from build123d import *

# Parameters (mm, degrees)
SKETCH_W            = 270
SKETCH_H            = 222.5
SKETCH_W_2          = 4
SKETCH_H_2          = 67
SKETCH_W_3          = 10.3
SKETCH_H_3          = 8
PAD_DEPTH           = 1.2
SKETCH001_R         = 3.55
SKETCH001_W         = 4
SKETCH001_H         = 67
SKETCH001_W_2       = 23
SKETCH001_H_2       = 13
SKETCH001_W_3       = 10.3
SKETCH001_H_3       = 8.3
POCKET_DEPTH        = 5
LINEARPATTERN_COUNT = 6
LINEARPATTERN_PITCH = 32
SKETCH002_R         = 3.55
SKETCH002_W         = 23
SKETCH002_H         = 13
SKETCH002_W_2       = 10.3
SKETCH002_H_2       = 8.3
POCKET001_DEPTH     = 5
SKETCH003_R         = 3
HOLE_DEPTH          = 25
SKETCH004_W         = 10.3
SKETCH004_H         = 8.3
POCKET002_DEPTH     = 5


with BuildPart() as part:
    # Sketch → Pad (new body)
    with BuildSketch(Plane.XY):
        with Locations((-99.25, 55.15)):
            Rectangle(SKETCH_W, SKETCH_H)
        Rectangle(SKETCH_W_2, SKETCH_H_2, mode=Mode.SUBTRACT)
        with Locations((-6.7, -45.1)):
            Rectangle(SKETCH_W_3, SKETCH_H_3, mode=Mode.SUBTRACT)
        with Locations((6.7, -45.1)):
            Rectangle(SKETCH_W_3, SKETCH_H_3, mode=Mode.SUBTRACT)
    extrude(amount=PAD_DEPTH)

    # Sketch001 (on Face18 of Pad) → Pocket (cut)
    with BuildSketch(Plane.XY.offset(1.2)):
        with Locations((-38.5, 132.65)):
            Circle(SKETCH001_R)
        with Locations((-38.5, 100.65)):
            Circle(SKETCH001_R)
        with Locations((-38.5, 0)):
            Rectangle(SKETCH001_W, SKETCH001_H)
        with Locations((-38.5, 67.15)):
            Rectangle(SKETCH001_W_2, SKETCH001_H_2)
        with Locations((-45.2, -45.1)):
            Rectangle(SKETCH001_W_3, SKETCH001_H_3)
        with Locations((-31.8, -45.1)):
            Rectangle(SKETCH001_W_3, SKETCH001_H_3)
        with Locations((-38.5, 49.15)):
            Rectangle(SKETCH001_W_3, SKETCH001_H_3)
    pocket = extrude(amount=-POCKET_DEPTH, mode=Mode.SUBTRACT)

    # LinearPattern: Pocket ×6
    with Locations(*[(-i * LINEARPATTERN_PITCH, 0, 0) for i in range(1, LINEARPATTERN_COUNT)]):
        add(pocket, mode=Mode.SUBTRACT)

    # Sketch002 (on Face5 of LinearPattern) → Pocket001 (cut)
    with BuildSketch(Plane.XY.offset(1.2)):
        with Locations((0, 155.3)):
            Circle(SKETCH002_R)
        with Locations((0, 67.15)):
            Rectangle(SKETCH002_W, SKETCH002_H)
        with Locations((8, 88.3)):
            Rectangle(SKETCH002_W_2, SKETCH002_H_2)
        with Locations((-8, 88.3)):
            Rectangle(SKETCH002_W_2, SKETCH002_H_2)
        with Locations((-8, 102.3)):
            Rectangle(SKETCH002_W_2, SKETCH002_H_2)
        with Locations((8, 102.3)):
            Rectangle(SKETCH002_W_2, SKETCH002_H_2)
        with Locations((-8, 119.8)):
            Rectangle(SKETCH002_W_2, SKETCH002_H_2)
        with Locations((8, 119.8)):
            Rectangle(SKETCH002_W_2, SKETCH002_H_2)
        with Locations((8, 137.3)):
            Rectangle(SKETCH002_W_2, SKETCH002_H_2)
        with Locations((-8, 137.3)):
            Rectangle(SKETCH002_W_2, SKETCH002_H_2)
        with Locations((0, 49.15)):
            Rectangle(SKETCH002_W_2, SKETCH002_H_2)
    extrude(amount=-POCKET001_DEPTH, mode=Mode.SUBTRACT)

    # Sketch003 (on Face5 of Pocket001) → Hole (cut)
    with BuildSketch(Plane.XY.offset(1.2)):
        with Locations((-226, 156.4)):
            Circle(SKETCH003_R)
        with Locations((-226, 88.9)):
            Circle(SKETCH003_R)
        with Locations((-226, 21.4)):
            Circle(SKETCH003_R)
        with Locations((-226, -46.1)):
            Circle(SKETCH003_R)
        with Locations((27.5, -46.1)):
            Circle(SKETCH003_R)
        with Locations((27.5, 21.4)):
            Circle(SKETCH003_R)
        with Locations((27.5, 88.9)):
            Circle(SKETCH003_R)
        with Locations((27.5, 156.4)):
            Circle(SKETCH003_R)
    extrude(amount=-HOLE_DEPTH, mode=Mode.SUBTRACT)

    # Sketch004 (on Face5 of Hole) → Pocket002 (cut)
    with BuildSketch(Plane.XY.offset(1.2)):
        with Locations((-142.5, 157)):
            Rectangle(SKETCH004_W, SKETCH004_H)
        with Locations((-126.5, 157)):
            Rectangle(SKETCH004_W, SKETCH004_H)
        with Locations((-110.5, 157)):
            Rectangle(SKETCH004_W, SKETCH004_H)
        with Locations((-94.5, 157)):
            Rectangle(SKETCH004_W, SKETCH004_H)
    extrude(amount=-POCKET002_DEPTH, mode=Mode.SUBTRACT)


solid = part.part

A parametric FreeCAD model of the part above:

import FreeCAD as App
import Part
import Sketcher

V = App.Vector


def add_polygon(sketch, points):
    """Adds a closed chain of lines whose ends are joined by coincident constraints."""
    first, n = sketch.GeometryCount, len(points)
    for a, b in zip(points, points[1:] + points[:1]):
        sketch.addGeometry(Part.LineSegment(App.Vector(*a, 0), App.Vector(*b, 0)), False)
    for i in range(n):
        sketch.addConstraint(Sketcher.Constraint("Coincident", first + i, 2, first + (i + 1) % n, 1))

doc = App.newDocument("Part")
body = doc.addObject("PartDesign::Body", "Body")

sketch1 = body.newObject("Sketcher::SketchObject", "Sketch")
sketch1.AttachmentSupport = (doc.getObject("XY_Plane"), [""])
sketch1.MapMode = "FlatFace"
add_polygon(sketch1, [(-234.25, 166.4), (-234.25, -56.1), (35.75, -56.1), (35.75, 166.4)])
add_polygon(sketch1, [(-1.55, -49.1), (-11.85, -49.1), (-11.85, -41.1), (-1.55, -41.1)])
add_polygon(sketch1, [(11.85, -49.1), (1.55, -49.1), (1.55, -41.1), (11.85, -41.1)])
add_polygon(sketch1, [(2, -33.5), (-2, -33.5), (-2, 33.5), (2, 33.5)])
sketch1.addConstraint([
    Sketcher.Constraint("Vertical", 0),
    Sketcher.Constraint("Horizontal", 1),
    Sketcher.Constraint("Vertical", 2),
    Sketcher.Constraint("Horizontal", 3),
    Sketcher.Constraint("Horizontal", 4),
    Sketcher.Constraint("Vertical", 5),
    Sketcher.Constraint("Horizontal", 6),
    Sketcher.Constraint("Vertical", 7),
    Sketcher.Constraint("Horizontal", 8),
    Sketcher.Constraint("Vertical", 9),
    Sketcher.Constraint("Horizontal", 10),
    Sketcher.Constraint("Vertical", 11),
    Sketcher.Constraint("Horizontal", 12),
    Sketcher.Constraint("Vertical", 13),
    Sketcher.Constraint("Horizontal", 14),
    Sketcher.Constraint("Vertical", 15),
    Sketcher.Constraint("Symmetric", 12, 2, 14, 2, -1, 1),
    Sketcher.Constraint("Symmetric", 7, 2, 8, 2, -2),
    Sketcher.Constraint("Symmetric", 5, 2, 10, 2, -2),
    Sketcher.Constraint("DistanceX", 1, 1, 1, 2, 270.0),
    Sketcher.Constraint("DistanceX", 12, 2, 12, 1, 4.0),
    Sketcher.Constraint("DistanceY", 5, 1, 5, 2, 8.0),
    Sketcher.Constraint("DistanceY", 13, 1, 13, 2, 67.0),
    Sketcher.Constraint("DistanceX", 4, 2, 4, 1, 10.3),
    Sketcher.Constraint("DistanceY", 0, 2, 0, 1, 222.5),
    Sketcher.Constraint("DistanceY", 1, 2, 4, 2, 7.0),
    Sketcher.Constraint("DistanceY", 0, 2, -1, 1, 56.1),
    Sketcher.Constraint("DistanceX", 4, 2, 1, 2, 47.6),
    Sketcher.Constraint("DistanceX", 7, 2, 8, 2, 3.1),
])
pad1 = body.newObject("PartDesign::Pad", "Pad")
pad1.Profile = sketch1
pad1.Length = 1.2

sketch2 = body.newObject("Sketcher::SketchObject", "Sketch001")
sketch2.AttachmentSupport = (doc.getObject("XY_Plane"), [""])
sketch2.MapMode = "FlatFace"
sketch2.AttachmentOffset = App.Placement(V(0, 0, 1.2), App.Rotation())
sketch2.addGeometry(Part.Circle(V(-38.5, 132.65, 0), V(0, 0, 1), 3.55), False)
sketch2.addGeometry(Part.Circle(V(-38.5, 100.65, 0), V(0, 0, 1), 3.55), False)
add_polygon(sketch2, [(-40.5, 33.5), (-40.5, -33.5), (-36.5, -33.5), (-36.5, 33.5)])
add_polygon(sketch2, [(-50, 73.65), (-50, 60.65), (-27, 60.65), (-27, 73.65)])
add_polygon(sketch2, [(-50.35, -40.95), (-50.35, -49.25), (-40.05, -49.25), (-40.05, -40.95)])
add_polygon(sketch2, [(-36.95, -40.95), (-36.95, -49.25), (-26.65, -49.25), (-26.65, -40.95)])
add_polygon(sketch2, [(-43.65, 53.3), (-43.65, 45), (-33.35, 45), (-33.35, 53.3)])
sketch2.addConstraint([
    Sketcher.Constraint("Vertical", 2),
    Sketcher.Constraint("Horizontal", 3),
    Sketcher.Constraint("Vertical", 4),
    Sketcher.Constraint("Horizontal", 5),
    Sketcher.Constraint("Vertical", 6),
    Sketcher.Constraint("Horizontal", 7),
    Sketcher.Constraint("Vertical", 8),
    Sketcher.Constraint("Horizontal", 9),
    Sketcher.Constraint("Vertical", 10),
    Sketcher.Constraint("Horizontal", 11),
    Sketcher.Constraint("Vertical", 12),
    Sketcher.Constraint("Horizontal", 13),
    Sketcher.Constraint("Vertical", 14),
    Sketcher.Constraint("Horizontal", 15),
    Sketcher.Constraint("Vertical", 16),
    Sketcher.Constraint("Horizontal", 17),
    Sketcher.Constraint("Vertical", 18),
    Sketcher.Constraint("Horizontal", 19),
    Sketcher.Constraint("Vertical", 20),
    Sketcher.Constraint("Horizontal", 21),
    Sketcher.Constraint("Equal", 0, 1),
    Sketcher.Constraint("Horizontal", 11, 2, 14, 2),
    Sketcher.Constraint("Horizontal", 13, 2, 16, 2),
    Sketcher.Constraint("Vertical", 0, 3, 1, 3),
    Sketcher.Constraint("Equal", 13, 15),
    Sketcher.Constraint("Equal", 17, 19),
    Sketcher.Constraint("Equal", 16, 18),
    Sketcher.Constraint("Diameter", 0, 7.1),
    Sketcher.Constraint("DistanceX", 3, 1, 3, 2, 4.0),
    Sketcher.Constraint("DistanceX", 7, 1, 7, 2, 23.0),
    Sketcher.Constraint("DistanceY", 2, 2, 2, 1, 67.0),
    Sketcher.Constraint("DistanceY", 6, 2, 6, 1, 13.0),
    Sketcher.Constraint("DistanceX", 11, 1, 11, 2, 10.3),
    Sketcher.Constraint("DistanceY", 10, 2, 10, 1, 8.3),
    Sketcher.Constraint("DistanceX", 6, 2, -1, 1, 50.0),
    Sketcher.Constraint("DistanceY", -1, 1, 18, 2, 45.0),
    Sketcher.Constraint("DistanceY", 1, 3, 0, 3, 32.0),
    Sketcher.Constraint("DistanceX", 2, 2, 1, 3, 2.0),
    Sketcher.Constraint("DistanceY", 6, 2, 1, 3, 40.0),
    Sketcher.Constraint("DistanceX", 0, 3, -1, 1, 38.5),
    Sketcher.Constraint("DistanceY", 2, 2, -1, 1, 33.5),
    Sketcher.Constraint("DistanceY", 10, 2, 6, 2, 109.9),
    Sketcher.Constraint("DistanceX", 11, 2, 14, 2, 3.1),
    Sketcher.Constraint("DistanceY", -1, 1, 0, 3, 132.65),
    Sketcher.Constraint("DistanceX", 10, 2, -1, 1, 50.35),
    Sketcher.Constraint("DistanceX", 18, 2, -1, 1, 43.65),
])
pocket1 = body.newObject("PartDesign::Pocket", "Pocket")
pocket1.Profile = sketch2
pocket1.Length = 5
doc.recompute()

linearpattern = body.newObject("PartDesign::LinearPattern", "LinearPattern")
linearpattern.Originals = [pocket1]
linearpattern.Direction = (doc.getObject("X_Axis"), [""])
linearpattern.Mode = "offset"
linearpattern.Offset = 32
linearpattern.Occurrences = 6
linearpattern.Reversed = True
body.Tip = linearpattern

sketch3 = body.newObject("Sketcher::SketchObject", "Sketch002")
sketch3.AttachmentSupport = (doc.getObject("XY_Plane"), [""])
sketch3.MapMode = "FlatFace"
sketch3.AttachmentOffset = App.Placement(V(0, 0, 1.2), App.Rotation())
sketch3.addGeometry(Part.Circle(V(0, 155.3, 0), V(0, 0, 1), 3.55), False)
add_polygon(sketch3, [(-11.5, 73.65), (-11.5, 60.65), (11.5, 60.65), (11.5, 73.65)])
add_polygon(sketch3, [(2.85, 92.45), (2.85, 84.15), (13.15, 84.15), (13.15, 92.45)])
add_polygon(sketch3, [(-13.15, 92.45), (-13.15, 84.15), (-2.85, 84.15), (-2.85, 92.45)])
add_polygon(sketch3, [(-13.15, 106.45), (-13.15, 98.15), (-2.85, 98.15), (-2.85, 106.45)])
add_polygon(sketch3, [(2.85, 106.45), (2.85, 98.15), (13.15, 98.15), (13.15, 106.45)])
add_polygon(sketch3, [(-13.15, 123.95), (-13.15, 115.65), (-2.85, 115.65), (-2.85, 123.95)])
add_polygon(sketch3, [(2.85, 123.95), (2.85, 115.65), (13.15, 115.65), (13.15, 123.95)])
add_polygon(sketch3, [(2.85, 141.45), (2.85, 133.15), (13.15, 133.15), (13.15, 141.45)])
add_polygon(sketch3, [(-13.15, 141.45), (-13.15, 133.15), (-2.85, 133.15), (-2.85, 141.45)])
add_polygon(sketch3, [(-5.15, 53.3), (-5.15, 45), (5.15, 45), (5.15, 53.3)])
sketch3.addConstraint([
    Sketcher.Constraint("Vertical", 1),
    Sketcher.Constraint("Horizontal", 2),
    Sketcher.Constraint("Vertical", 3),
    Sketcher.Constraint("Horizontal", 4),
    Sketcher.Constraint("Vertical", 5),
    Sketcher.Constraint("Horizontal", 6),
    Sketcher.Constraint("Vertical", 7),
    Sketcher.Constraint("Horizontal", 8),
    Sketcher.Constraint("Vertical", 9),
    Sketcher.Constraint("Horizontal", 10),
    Sketcher.Constraint("Vertical", 11),
    Sketcher.Constraint("Horizontal", 12),
    Sketcher.Constraint("Vertical", 13),
    Sketcher.Constraint("Horizontal", 14),
    Sketcher.Constraint("Vertical", 15),
    Sketcher.Constraint("Horizontal", 16),
    Sketcher.Constraint("Vertical", 17),
    Sketcher.Constraint("Horizontal", 18),
    Sketcher.Constraint("Vertical", 19),
    Sketcher.Constraint("Horizontal", 20),
    Sketcher.Constraint("Vertical", 21),
    Sketcher.Constraint("Horizontal", 22),
    Sketcher.Constraint("Vertical", 23),
    Sketcher.Constraint("Horizontal", 24),
    Sketcher.Constraint("Vertical", 25),
    Sketcher.Constraint("Horizontal", 26),
    Sketcher.Constraint("Vertical", 27),
    Sketcher.Constraint("Horizontal", 28),
    Sketcher.Constraint("Vertical", 29),
    Sketcher.Constraint("Horizontal", 30),
    Sketcher.Constraint("Vertical", 31),
    Sketcher.Constraint("Horizontal", 32),
    Sketcher.Constraint("Vertical", 33),
    Sketcher.Constraint("Horizontal", 34),
    Sketcher.Constraint("Vertical", 35),
    Sketcher.Constraint("Horizontal", 36),
    Sketcher.Constraint("Vertical", 37),
    Sketcher.Constraint("Horizontal", 38),
    Sketcher.Constraint("Vertical", 39),
    Sketcher.Constraint("Horizontal", 40),
    Sketcher.Constraint("Symmetric", 6, 2, 9, 2, -2),
    Sketcher.Constraint("Symmetric", 8, 2, 11, 2, -2),
    Sketcher.Constraint("Symmetric", 14, 2, 17, 2, -2),
    Sketcher.Constraint("Symmetric", 16, 2, 19, 2, -2),
    Sketcher.Constraint("Symmetric", 22, 2, 25, 2, -2),
    Sketcher.Constraint("Symmetric", 24, 2, 27, 2, -2),
    Sketcher.Constraint("Symmetric", 30, 2, 33, 2, -2),
    Sketcher.Constraint("Symmetric", 32, 2, 35, 2, -2),
    Sketcher.Constraint("PointOnObject", 0, 3, -2),
    Sketcher.Constraint("Vertical", 12, 2, 13, 2),
    Sketcher.Constraint("Vertical", 11, 2, 14, 2),
    Sketcher.Constraint("Vertical", 16, 2, 21, 2),
    Sketcher.Constraint("Vertical", 15, 2, 22, 2),
    Sketcher.Constraint("Vertical", 28, 2, 29, 2),
    Sketcher.Constraint("Vertical", 27, 2, 30, 2),
    Sketcher.Constraint("Equal", 36, 38),
    Sketcher.Constraint("Equal", 11, 13),
    Sketcher.Constraint("Equal", 19, 21),
    Sketcher.Constraint("Equal", 27, 29),
    Sketcher.Constraint("Equal", 35, 37),
    Sketcher.Constraint("Diameter", 0, 7.1),
    Sketcher.Constraint("DistanceX", 2, 1, 2, 2, 23.0),
    Sketcher.Constraint("DistanceY", 1, 2, 1, 1, 13.0),
    Sketcher.Constraint("DistanceX", 6, 1, 6, 2, 10.3),
    Sketcher.Constraint("DistanceY", 5, 2, 5, 1, 8.3),
    Sketcher.Constraint("DistanceY", -1, 1, 37, 2, 45.0),
    Sketcher.Constraint("DistanceX", 9, 2, 5, 2, 16.0),
    Sketcher.Constraint("DistanceY", 9, 2, 13, 2, 14.0),
    Sketcher.Constraint("DistanceY", -1, 1, 0, 3, 155.3),
    Sketcher.Constraint("DistanceX", 1, 2, -1, 1, 11.5),
    Sketcher.Constraint("DistanceY", 3, 2, 5, 2, 10.5),
    Sketcher.Constraint("DistanceY", 16, 2, 21, 2, 9.2),
    Sketcher.Constraint("DistanceY", 28, 2, 29, 2, 9.2),
    Sketcher.Constraint("DistanceX", 37, 2, 10, 2, 2.3),
    Sketcher.Constraint("DistanceY", -1, 1, 1, 2, 60.65),
])
pocket2 = body.newObject("PartDesign::Pocket", "Pocket001")
pocket2.Profile = sketch3
pocket2.Length = 5

sketch4 = body.newObject("Sketcher::SketchObject", "Sketch003")
sketch4.AttachmentSupport = (doc.getObject("XY_Plane"), [""])
sketch4.MapMode = "FlatFace"
sketch4.AttachmentOffset = App.Placement(V(0, 0, 1.2), App.Rotation())
sketch4.addGeometry([
    Part.Circle(V(-226, 156.4, 0), V(0, 0, 1), 3),
    Part.Circle(V(-226, 88.9, 0), V(0, 0, 1), 3),
    Part.Circle(V(-226, 21.4, 0), V(0, 0, 1), 3),
    Part.Circle(V(-226, -46.1, 0), V(0, 0, 1), 3),
    Part.Circle(V(27.5, -46.1, 0), V(0, 0, 1), 3),
    Part.Circle(V(27.5, 21.4, 0), V(0, 0, 1), 3),
    Part.Circle(V(27.5, 88.9, 0), V(0, 0, 1), 3),
    Part.Circle(V(27.5, 156.4, 0), V(0, 0, 1), 3),
], False)
sketch4.addConstraint([
    Sketcher.Constraint("Equal", 0, 1),
    Sketcher.Constraint("Equal", 1, 2),
    Sketcher.Constraint("Equal", 2, 3),
    Sketcher.Constraint("Equal", 3, 4),
    Sketcher.Constraint("Equal", 4, 5),
    Sketcher.Constraint("Equal", 5, 6),
    Sketcher.Constraint("Equal", 6, 7),
    Sketcher.Constraint("Horizontal", 3, 3, 4, 3),
    Sketcher.Constraint("Horizontal", 2, 3, 5, 3),
    Sketcher.Constraint("Horizontal", 1, 3, 6, 3),
    Sketcher.Constraint("Horizontal", 0, 3, 7, 3),
    Sketcher.Constraint("Vertical", 0, 3, 1, 3),
    Sketcher.Constraint("Vertical", 1, 3, 2, 3),
    Sketcher.Constraint("Vertical", 2, 3, 3, 3),
    Sketcher.Constraint("Vertical", 4, 3, 5, 3),
    Sketcher.Constraint("Vertical", 5, 3, 6, 3),
    Sketcher.Constraint("Vertical", 6, 3, 7, 3),
    Sketcher.Constraint("Diameter", 0, 6.0),
    Sketcher.Constraint("DistanceX", 0, 3, -1, 1, 226.0),
    Sketcher.Constraint("DistanceY", 2, 3, 0, 3, 135.0),
    Sketcher.Constraint("DistanceY", 3, 3, 1, 3, 135.0),
    Sketcher.Constraint("DistanceY", -1, 1, 0, 3, 156.4),
    Sketcher.Constraint("DistanceY", -1, 1, 1, 3, 88.9),
    Sketcher.Constraint("DistanceX", -1, 1, 4, 3, 27.5),
])
pocket3 = body.newObject("PartDesign::Pocket", "Pocket002")
pocket3.Profile = sketch4
pocket3.Length = 25

sketch5 = body.newObject("Sketcher::SketchObject", "Sketch004")
sketch5.AttachmentSupport = (doc.getObject("XY_Plane"), [""])
sketch5.MapMode = "FlatFace"
sketch5.AttachmentOffset = App.Placement(V(0, 0, 1.2), App.Rotation())
add_polygon(sketch5, [(-147.65, 161.15), (-147.65, 152.85), (-137.35, 152.85), (-137.35, 161.15)])
add_polygon(sketch5, [(-131.65, 161.15), (-131.65, 152.85), (-121.35, 152.85), (-121.35, 161.15)])
add_polygon(sketch5, [(-115.65, 161.15), (-115.65, 152.85), (-105.35, 152.85), (-105.35, 161.15)])
add_polygon(sketch5, [(-99.65, 161.15), (-99.65, 152.85), (-89.35, 152.85), (-89.35, 161.15)])
sketch5.addConstraint([
    Sketcher.Constraint("Vertical", 0),
    Sketcher.Constraint("Horizontal", 1),
    Sketcher.Constraint("Vertical", 2),
    Sketcher.Constraint("Horizontal", 3),
    Sketcher.Constraint("Vertical", 4),
    Sketcher.Constraint("Horizontal", 5),
    Sketcher.Constraint("Vertical", 6),
    Sketcher.Constraint("Horizontal", 7),
    Sketcher.Constraint("Vertical", 8),
    Sketcher.Constraint("Horizontal", 9),
    Sketcher.Constraint("Vertical", 10),
    Sketcher.Constraint("Horizontal", 11),
    Sketcher.Constraint("Vertical", 12),
    Sketcher.Constraint("Horizontal", 13),
    Sketcher.Constraint("Vertical", 14),
    Sketcher.Constraint("Horizontal", 15),
    Sketcher.Constraint("Horizontal", 1, 2, 4, 2),
    Sketcher.Constraint("Horizontal", 3, 2, 6, 2),
    Sketcher.Constraint("Horizontal", 5, 2, 8, 2),
    Sketcher.Constraint("Horizontal", 7, 2, 10, 2),
    Sketcher.Constraint("Horizontal", 9, 2, 12, 2),
    Sketcher.Constraint("Horizontal", 11, 2, 14, 2),
    Sketcher.Constraint("Equal", 3, 5),
    Sketcher.Constraint("Equal", 7, 9),
    Sketcher.Constraint("Equal", 11, 13),
    Sketcher.Constraint("DistanceX", 1, 1, 1, 2, 10.3),
    Sketcher.Constraint("DistanceY", 0, 2, 0, 1, 8.3),
    Sketcher.Constraint("DistanceX", 0, 2, 4, 2, 16.0),
    Sketcher.Constraint("DistanceX", 4, 2, 8, 2, 16.0),
    Sketcher.Constraint("DistanceX", 8, 2, 12, 2, 16.0),
    Sketcher.Constraint("DistanceX", 0, 2, -1, 1, 147.65),
    Sketcher.Constraint("DistanceY", -1, 1, 0, 2, 152.85),
])
pocket4 = body.newObject("PartDesign::Pocket", "Pocket003")
pocket4.Profile = sketch5
pocket4.Length = 5

doc.recompute()
